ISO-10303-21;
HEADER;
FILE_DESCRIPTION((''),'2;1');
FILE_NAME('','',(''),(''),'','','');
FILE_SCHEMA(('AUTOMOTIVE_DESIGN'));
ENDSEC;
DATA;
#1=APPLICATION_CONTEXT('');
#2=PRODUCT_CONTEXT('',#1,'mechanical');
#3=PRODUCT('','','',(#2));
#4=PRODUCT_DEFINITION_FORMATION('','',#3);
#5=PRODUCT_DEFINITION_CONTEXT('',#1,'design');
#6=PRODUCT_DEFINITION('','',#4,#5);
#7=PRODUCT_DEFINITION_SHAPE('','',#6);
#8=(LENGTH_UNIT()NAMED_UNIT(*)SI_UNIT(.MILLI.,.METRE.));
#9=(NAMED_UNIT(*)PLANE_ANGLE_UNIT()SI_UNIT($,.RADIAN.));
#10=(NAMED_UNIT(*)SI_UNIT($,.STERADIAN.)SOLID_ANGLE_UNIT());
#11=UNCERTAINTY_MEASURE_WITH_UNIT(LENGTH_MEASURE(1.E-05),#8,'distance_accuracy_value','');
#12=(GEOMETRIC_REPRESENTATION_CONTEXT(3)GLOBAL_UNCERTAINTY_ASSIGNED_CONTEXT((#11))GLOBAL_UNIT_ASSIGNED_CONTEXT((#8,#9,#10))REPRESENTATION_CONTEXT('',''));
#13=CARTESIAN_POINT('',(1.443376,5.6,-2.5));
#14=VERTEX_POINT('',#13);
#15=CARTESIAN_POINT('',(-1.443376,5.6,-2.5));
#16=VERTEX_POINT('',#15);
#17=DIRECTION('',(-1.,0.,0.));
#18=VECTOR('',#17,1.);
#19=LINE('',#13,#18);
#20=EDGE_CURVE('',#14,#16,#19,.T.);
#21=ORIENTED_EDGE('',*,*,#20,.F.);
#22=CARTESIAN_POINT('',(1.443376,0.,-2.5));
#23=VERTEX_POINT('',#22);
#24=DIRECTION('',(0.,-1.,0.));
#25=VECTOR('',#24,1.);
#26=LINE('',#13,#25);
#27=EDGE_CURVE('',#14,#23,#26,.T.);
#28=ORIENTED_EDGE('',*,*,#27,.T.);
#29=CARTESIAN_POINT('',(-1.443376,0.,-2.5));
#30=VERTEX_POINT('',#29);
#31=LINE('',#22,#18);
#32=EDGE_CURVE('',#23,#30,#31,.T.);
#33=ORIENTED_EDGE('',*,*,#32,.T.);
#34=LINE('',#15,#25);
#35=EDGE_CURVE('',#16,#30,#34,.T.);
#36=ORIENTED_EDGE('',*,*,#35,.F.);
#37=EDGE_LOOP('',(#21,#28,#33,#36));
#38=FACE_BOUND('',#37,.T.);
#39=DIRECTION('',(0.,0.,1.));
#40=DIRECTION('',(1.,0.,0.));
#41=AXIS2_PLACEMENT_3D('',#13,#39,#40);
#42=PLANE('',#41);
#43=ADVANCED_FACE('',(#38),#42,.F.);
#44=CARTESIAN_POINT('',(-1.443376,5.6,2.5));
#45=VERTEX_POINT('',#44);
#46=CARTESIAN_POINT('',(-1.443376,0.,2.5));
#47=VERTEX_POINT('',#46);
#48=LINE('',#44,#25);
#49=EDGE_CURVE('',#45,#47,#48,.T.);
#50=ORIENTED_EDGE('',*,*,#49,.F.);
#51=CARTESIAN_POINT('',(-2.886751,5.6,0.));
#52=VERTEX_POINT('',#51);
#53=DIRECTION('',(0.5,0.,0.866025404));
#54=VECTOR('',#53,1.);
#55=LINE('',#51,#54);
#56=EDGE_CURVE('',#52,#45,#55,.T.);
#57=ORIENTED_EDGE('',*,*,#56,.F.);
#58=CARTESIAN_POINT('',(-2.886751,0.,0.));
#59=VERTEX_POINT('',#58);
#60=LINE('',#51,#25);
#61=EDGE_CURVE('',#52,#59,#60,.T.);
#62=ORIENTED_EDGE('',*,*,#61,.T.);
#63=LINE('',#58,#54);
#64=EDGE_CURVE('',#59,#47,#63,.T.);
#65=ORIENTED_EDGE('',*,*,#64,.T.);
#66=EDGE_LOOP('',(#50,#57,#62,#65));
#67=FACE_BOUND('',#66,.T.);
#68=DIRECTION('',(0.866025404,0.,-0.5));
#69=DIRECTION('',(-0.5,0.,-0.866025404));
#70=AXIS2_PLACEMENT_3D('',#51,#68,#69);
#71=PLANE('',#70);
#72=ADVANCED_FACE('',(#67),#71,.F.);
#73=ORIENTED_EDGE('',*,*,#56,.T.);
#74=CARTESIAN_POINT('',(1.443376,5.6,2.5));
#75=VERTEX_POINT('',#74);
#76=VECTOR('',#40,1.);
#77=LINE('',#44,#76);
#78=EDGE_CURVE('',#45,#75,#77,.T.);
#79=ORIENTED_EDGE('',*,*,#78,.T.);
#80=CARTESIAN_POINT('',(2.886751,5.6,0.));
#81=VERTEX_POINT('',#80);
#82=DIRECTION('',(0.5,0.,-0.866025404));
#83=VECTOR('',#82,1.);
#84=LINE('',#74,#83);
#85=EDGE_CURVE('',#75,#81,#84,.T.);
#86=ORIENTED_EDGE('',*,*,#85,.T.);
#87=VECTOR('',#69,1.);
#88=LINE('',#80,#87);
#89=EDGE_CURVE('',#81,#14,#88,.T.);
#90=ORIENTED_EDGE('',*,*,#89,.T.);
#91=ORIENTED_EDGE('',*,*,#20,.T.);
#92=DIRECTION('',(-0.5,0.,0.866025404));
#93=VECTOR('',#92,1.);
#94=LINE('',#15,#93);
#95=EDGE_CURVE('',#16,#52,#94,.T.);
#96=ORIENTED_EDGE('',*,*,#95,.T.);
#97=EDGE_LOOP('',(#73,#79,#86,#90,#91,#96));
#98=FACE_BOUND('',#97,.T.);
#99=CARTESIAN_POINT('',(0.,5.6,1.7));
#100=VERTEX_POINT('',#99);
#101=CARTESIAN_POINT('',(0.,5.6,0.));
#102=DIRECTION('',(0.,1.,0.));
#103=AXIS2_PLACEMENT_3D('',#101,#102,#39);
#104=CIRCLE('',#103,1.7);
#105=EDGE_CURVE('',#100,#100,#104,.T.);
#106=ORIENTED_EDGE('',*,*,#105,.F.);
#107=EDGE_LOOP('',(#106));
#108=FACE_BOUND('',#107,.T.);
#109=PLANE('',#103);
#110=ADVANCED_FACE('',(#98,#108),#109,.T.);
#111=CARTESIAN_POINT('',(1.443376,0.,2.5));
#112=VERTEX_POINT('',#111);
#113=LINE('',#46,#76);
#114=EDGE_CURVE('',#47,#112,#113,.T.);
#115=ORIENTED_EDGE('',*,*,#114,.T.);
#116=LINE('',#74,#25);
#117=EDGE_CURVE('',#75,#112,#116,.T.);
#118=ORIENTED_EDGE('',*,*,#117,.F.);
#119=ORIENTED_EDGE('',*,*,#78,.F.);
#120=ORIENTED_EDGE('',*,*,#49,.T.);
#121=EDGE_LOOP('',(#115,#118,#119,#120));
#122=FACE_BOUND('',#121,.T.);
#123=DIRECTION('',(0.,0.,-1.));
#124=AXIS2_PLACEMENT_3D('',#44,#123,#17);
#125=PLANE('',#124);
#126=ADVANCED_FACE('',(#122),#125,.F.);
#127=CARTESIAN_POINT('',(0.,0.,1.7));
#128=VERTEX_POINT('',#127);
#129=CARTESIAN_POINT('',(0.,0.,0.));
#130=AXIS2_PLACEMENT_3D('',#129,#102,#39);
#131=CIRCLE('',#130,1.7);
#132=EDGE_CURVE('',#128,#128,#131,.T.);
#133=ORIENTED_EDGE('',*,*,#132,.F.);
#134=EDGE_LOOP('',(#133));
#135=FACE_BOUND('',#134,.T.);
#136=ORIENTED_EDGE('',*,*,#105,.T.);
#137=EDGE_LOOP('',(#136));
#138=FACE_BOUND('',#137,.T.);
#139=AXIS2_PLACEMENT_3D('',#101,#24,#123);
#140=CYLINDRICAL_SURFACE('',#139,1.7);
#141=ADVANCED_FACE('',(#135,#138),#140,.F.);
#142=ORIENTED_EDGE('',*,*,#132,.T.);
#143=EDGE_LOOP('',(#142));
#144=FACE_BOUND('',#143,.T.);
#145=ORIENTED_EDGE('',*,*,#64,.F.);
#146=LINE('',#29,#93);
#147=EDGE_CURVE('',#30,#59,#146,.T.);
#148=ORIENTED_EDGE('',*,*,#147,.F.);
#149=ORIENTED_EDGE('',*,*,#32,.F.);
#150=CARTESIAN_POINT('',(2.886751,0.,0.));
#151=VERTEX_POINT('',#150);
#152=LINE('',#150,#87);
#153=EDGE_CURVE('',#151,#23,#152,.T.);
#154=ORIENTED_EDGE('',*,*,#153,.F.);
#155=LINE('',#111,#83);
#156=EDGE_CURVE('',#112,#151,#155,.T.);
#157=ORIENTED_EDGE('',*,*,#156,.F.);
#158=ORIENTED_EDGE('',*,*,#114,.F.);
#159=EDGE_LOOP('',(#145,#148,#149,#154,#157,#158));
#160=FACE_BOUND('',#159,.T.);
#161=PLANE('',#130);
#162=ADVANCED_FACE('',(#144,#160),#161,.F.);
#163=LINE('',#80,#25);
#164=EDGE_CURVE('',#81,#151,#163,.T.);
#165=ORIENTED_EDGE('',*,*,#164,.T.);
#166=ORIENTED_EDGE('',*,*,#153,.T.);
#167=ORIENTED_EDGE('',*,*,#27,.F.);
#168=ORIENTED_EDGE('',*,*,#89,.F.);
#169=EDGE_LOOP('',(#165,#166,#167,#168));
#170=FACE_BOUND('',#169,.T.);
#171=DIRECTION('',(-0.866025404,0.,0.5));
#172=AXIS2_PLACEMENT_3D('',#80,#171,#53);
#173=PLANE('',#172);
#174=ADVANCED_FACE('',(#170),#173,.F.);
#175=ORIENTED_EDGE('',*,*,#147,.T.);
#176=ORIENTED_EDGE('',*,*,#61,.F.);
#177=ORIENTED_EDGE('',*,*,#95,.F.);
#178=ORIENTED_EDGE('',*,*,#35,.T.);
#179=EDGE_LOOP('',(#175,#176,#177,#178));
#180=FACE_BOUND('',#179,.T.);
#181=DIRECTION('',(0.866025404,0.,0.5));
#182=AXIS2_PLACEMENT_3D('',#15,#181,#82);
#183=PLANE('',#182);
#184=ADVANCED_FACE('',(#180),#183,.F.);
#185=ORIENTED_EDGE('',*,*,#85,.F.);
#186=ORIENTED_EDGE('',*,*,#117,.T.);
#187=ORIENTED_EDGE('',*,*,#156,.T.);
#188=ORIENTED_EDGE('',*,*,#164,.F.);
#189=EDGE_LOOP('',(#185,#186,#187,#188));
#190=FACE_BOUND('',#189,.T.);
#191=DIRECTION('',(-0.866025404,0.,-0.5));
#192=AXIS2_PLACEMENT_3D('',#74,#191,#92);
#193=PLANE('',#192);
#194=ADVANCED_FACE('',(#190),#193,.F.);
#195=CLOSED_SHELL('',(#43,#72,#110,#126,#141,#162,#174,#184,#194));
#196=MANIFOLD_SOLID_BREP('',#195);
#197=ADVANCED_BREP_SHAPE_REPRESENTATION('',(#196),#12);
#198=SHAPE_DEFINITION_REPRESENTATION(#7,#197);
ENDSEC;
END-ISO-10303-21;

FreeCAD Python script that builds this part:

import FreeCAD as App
import Part
import Sketcher
from FreeCAD import Vector
Q = App.Units.Quantity


def add_polygon(sketch, points):
    """Adds a closed chain of lines whose ends are joined by coincident constraints."""
    first, n = sketch.GeometryCount, len(points)
    for a, b in zip(points, points[1:] + points[:1]):
        sketch.addGeometry(Part.LineSegment(App.Vector(*a, 0), App.Vector(*b, 0)), False)
    for i in range(n):
        sketch.addConstraint(Sketcher.Constraint("Coincident", first + i, 2, first + (i + 1) % n, 1))

doc = App.newDocument("Part")
body = doc.addObject("PartDesign::Body", "Body")

sketch1 = body.newObject("Sketcher::SketchObject", "Sketch")
sketch1.AttachmentSupport = (doc.getObject("XZ_Plane"), [""])
sketch1.MapMode = "FlatFace"
add_polygon(sketch1, [(2.9, 0), (1.4, -2.5), (-1.4, -2.5), (-2.9, 0), (-1.4, 2.5), (1.4, 2.5)])
sketch1.addGeometry(Part.Circle(Vector(0, 0, 0), Vector(0, 0, 1), 1.7), False)
sketch1.addConstraint(Sketcher.Constraint("Horizontal", 1))
sketch1.addConstraint(Sketcher.Constraint("Horizontal", 4))
sketch1.addConstraint(Sketcher.Constraint("Coincident", 6, 3, -1, 1))
sketch1.addConstraint(Sketcher.Constraint("Symmetric", 0, 2, 3, 2, -1, 1))
sketch1.addConstraint(Sketcher.Constraint("Symmetric", 2, 2, 5, 2, -1, 1))
sketch1.addConstraint(Sketcher.Constraint("PointOnObject", 2, 2, -1))
sketch1.addConstraint(Sketcher.Constraint("Parallel", 2, 5))
sketch1.addConstraint(Sketcher.Constraint("Vertical", 1, 2, 3, 2))
sketch1.addConstraint(Sketcher.Constraint("Diameter", 6, 3.4))
sketch1.addConstraint(Sketcher.Constraint("Angle", 0, Q("-120 deg")))
sketch1.addConstraint(Sketcher.Constraint("DistanceY", 1, 2, 3, 2, 5.0))
sketch1.addConstraint(Sketcher.Constraint("DistanceX", 1, 2, 1, 1, 2.886751))
pad1 = body.newObject("PartDesign::Pad", "Pad")
pad1.Profile = sketch1
pad1.Length = 5.6
pad1.Reversed = True

doc.recompute()
